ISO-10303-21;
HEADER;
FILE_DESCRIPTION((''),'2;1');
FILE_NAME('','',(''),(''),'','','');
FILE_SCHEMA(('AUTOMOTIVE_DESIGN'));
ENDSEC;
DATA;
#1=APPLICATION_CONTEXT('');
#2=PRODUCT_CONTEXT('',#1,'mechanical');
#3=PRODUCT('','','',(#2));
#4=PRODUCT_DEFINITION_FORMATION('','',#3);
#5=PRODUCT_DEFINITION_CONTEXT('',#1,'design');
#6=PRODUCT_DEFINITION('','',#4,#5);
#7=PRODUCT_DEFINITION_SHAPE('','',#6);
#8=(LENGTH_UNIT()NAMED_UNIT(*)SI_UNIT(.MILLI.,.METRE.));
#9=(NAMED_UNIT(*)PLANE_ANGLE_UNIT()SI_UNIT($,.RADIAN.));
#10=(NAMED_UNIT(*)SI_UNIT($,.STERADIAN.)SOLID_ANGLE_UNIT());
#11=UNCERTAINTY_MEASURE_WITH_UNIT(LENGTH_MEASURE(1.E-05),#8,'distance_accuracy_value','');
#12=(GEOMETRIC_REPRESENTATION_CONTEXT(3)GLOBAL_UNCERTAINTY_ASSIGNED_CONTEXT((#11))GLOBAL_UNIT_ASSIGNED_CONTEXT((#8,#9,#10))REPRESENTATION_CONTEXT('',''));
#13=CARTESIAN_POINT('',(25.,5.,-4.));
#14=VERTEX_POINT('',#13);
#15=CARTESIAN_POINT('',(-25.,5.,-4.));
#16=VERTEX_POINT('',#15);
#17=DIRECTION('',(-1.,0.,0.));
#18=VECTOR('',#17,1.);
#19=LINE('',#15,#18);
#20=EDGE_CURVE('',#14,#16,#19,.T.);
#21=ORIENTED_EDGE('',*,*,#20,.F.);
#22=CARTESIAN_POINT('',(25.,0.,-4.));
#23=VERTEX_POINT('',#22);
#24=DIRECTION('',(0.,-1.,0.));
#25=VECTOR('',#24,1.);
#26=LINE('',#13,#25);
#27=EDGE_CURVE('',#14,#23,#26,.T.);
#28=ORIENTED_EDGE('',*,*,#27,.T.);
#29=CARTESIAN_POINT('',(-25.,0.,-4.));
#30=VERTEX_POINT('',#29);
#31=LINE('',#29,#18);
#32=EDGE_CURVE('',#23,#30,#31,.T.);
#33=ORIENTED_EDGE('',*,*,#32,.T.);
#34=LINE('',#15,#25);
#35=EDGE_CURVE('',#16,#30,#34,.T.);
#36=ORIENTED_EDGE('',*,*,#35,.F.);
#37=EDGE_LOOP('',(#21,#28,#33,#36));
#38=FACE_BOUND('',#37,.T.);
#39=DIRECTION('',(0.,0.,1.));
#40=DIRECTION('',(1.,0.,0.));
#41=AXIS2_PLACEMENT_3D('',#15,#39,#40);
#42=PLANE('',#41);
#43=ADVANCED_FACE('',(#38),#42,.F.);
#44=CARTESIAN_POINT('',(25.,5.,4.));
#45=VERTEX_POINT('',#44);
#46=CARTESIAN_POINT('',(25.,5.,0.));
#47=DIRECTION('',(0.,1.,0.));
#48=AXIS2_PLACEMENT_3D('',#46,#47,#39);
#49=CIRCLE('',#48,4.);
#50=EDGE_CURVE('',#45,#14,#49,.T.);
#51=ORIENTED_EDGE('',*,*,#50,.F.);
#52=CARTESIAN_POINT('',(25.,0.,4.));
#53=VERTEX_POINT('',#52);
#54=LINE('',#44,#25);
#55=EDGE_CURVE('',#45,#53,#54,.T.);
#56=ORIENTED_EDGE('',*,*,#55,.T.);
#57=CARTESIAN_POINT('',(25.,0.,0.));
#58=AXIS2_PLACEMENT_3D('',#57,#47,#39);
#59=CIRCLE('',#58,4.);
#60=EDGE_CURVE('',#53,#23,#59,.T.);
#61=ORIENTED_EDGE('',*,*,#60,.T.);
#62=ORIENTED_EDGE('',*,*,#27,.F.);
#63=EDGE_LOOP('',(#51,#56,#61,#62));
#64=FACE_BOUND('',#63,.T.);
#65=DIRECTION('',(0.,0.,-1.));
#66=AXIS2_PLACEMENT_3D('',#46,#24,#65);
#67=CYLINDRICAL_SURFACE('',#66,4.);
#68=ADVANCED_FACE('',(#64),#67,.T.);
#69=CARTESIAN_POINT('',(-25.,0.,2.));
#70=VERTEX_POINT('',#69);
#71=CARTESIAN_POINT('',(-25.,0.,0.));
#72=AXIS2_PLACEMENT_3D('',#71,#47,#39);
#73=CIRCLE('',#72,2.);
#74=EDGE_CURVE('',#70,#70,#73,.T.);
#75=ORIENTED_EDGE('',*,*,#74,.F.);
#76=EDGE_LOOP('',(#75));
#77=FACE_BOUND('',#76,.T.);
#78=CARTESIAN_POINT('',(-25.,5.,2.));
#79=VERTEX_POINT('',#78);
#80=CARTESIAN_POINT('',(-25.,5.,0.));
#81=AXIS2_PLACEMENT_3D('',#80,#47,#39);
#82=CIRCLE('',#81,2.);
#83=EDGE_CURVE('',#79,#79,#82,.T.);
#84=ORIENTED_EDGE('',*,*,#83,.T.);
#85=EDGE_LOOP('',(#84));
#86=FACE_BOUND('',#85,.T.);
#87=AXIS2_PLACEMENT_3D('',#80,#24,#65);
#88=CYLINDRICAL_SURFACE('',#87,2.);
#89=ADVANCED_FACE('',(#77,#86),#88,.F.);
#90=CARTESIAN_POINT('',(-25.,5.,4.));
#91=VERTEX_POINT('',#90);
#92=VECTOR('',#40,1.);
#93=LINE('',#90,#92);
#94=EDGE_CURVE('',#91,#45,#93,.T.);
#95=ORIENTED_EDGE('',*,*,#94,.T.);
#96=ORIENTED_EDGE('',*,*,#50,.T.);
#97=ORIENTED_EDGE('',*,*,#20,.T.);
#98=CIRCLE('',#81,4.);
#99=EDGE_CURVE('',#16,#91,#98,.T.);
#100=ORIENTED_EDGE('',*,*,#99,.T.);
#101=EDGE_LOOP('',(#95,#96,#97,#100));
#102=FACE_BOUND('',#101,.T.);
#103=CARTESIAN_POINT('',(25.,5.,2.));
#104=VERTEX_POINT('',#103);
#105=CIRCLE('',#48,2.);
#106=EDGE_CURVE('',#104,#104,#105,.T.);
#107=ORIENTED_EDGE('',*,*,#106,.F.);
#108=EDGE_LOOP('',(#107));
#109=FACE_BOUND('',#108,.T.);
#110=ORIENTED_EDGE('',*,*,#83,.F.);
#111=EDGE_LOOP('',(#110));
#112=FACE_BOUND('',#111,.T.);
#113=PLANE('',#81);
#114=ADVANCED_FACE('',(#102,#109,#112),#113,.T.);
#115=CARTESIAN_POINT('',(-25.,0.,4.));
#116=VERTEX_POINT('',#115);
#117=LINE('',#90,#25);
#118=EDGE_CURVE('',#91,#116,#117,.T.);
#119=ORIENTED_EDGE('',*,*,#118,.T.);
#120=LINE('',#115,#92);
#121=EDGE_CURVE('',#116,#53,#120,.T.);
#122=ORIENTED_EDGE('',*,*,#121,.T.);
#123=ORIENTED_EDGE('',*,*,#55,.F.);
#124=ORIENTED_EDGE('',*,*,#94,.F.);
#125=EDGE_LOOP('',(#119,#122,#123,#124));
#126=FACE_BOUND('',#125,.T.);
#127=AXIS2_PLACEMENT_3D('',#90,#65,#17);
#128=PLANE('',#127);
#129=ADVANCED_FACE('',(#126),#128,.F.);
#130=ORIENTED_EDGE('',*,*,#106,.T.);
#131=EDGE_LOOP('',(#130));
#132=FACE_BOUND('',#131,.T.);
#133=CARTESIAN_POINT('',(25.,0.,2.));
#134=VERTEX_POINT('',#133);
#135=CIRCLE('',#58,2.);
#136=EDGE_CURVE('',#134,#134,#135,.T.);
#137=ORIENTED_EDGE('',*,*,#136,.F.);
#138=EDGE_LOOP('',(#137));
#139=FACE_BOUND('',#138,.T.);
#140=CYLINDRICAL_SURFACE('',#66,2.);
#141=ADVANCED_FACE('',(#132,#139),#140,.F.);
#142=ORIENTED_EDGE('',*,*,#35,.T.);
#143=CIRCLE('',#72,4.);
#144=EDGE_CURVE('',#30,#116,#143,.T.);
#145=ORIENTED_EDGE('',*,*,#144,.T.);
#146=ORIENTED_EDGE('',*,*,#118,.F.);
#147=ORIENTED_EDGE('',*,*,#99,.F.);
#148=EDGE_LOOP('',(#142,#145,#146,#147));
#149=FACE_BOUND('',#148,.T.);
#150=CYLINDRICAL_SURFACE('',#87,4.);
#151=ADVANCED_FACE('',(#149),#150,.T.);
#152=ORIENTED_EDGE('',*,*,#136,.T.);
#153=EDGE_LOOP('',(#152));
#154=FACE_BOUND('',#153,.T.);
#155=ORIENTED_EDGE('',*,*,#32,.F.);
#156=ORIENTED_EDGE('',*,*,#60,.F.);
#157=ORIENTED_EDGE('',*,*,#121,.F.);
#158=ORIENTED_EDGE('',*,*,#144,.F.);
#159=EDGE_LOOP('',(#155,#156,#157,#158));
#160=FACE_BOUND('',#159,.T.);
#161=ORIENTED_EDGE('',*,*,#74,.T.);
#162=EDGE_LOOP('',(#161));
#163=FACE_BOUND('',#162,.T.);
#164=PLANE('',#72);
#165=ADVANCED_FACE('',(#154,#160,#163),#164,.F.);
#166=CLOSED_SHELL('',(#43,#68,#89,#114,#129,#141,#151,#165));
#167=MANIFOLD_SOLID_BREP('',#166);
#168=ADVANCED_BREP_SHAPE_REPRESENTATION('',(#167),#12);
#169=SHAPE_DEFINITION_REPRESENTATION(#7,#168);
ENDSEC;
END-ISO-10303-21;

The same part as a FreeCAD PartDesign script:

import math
import FreeCAD as App
import Part
import Sketcher
Q = App.Units.Quantity

doc = App.newDocument("Part")
body = doc.addObject("PartDesign::Body", "Body")

# Sketch on XZ plane
sketch1 = body.newObject("Sketcher::SketchObject", "Sketch")
sketch1.AttachmentSupport = (doc.getObject("XZ_Plane"), [""])
sketch1.MapMode = "FlatFace"
sketch1.addGeometry([
    Part.LineSegment(App.Vector(25, -4, 0), App.Vector(-25, -4, 0)),  # 0
    Part.ArcOfCircle(Part.Circle(App.Vector(-25, 0, 0), App.Vector(0, 0, 1), 4), math.radians(90), math.radians(270)),  # 1
    Part.LineSegment(App.Vector(-25, 4, 0), App.Vector(25, 4, 0)),  # 2
    Part.ArcOfCircle(Part.Circle(App.Vector(25, 0, 0), App.Vector(0, 0, 1), 4), math.radians(-90), math.radians(90)),  # 3
    Part.Circle(App.Vector(25, 0, 0), App.Vector(0, 0, 1), 2),  # 4
    Part.Circle(App.Vector(-25, 0, 0), App.Vector(0, 0, 1), 2),  # 5
], False)
sketch1.addConstraint([
    Sketcher.Constraint("Tangent", 0, 2, 1, 2),
    Sketcher.Constraint("Tangent", 1, 1, 2, 1),
    Sketcher.Constraint("Tangent", 2, 2, 3, 2),
    Sketcher.Constraint("Tangent", 3, 1, 0, 1),
    Sketcher.Constraint("Horizontal", 0),
    Sketcher.Constraint("Horizontal", 2),
    Sketcher.Constraint("Coincident", 4, 3, 3, 3),
    Sketcher.Constraint("Coincident", 5, 3, 1, 3),
    Sketcher.Constraint("Equal", 4, 5),
    Sketcher.Constraint("Symmetric", 1, 3, 3, 3, -1, 1),
    Sketcher.Constraint("Diameter", 4, Q("4 mm")),
    Sketcher.Constraint("Radius", 1, Q("4 mm")),
    Sketcher.Constraint("DistanceX", 0, 2, 0, 1, Q("50 mm")),
])
pad1 = body.newObject("PartDesign::Pad", "Pad")
pad1.Profile = sketch1
pad1.Length = 5
pad1.Reversed = True

doc.recompute()
